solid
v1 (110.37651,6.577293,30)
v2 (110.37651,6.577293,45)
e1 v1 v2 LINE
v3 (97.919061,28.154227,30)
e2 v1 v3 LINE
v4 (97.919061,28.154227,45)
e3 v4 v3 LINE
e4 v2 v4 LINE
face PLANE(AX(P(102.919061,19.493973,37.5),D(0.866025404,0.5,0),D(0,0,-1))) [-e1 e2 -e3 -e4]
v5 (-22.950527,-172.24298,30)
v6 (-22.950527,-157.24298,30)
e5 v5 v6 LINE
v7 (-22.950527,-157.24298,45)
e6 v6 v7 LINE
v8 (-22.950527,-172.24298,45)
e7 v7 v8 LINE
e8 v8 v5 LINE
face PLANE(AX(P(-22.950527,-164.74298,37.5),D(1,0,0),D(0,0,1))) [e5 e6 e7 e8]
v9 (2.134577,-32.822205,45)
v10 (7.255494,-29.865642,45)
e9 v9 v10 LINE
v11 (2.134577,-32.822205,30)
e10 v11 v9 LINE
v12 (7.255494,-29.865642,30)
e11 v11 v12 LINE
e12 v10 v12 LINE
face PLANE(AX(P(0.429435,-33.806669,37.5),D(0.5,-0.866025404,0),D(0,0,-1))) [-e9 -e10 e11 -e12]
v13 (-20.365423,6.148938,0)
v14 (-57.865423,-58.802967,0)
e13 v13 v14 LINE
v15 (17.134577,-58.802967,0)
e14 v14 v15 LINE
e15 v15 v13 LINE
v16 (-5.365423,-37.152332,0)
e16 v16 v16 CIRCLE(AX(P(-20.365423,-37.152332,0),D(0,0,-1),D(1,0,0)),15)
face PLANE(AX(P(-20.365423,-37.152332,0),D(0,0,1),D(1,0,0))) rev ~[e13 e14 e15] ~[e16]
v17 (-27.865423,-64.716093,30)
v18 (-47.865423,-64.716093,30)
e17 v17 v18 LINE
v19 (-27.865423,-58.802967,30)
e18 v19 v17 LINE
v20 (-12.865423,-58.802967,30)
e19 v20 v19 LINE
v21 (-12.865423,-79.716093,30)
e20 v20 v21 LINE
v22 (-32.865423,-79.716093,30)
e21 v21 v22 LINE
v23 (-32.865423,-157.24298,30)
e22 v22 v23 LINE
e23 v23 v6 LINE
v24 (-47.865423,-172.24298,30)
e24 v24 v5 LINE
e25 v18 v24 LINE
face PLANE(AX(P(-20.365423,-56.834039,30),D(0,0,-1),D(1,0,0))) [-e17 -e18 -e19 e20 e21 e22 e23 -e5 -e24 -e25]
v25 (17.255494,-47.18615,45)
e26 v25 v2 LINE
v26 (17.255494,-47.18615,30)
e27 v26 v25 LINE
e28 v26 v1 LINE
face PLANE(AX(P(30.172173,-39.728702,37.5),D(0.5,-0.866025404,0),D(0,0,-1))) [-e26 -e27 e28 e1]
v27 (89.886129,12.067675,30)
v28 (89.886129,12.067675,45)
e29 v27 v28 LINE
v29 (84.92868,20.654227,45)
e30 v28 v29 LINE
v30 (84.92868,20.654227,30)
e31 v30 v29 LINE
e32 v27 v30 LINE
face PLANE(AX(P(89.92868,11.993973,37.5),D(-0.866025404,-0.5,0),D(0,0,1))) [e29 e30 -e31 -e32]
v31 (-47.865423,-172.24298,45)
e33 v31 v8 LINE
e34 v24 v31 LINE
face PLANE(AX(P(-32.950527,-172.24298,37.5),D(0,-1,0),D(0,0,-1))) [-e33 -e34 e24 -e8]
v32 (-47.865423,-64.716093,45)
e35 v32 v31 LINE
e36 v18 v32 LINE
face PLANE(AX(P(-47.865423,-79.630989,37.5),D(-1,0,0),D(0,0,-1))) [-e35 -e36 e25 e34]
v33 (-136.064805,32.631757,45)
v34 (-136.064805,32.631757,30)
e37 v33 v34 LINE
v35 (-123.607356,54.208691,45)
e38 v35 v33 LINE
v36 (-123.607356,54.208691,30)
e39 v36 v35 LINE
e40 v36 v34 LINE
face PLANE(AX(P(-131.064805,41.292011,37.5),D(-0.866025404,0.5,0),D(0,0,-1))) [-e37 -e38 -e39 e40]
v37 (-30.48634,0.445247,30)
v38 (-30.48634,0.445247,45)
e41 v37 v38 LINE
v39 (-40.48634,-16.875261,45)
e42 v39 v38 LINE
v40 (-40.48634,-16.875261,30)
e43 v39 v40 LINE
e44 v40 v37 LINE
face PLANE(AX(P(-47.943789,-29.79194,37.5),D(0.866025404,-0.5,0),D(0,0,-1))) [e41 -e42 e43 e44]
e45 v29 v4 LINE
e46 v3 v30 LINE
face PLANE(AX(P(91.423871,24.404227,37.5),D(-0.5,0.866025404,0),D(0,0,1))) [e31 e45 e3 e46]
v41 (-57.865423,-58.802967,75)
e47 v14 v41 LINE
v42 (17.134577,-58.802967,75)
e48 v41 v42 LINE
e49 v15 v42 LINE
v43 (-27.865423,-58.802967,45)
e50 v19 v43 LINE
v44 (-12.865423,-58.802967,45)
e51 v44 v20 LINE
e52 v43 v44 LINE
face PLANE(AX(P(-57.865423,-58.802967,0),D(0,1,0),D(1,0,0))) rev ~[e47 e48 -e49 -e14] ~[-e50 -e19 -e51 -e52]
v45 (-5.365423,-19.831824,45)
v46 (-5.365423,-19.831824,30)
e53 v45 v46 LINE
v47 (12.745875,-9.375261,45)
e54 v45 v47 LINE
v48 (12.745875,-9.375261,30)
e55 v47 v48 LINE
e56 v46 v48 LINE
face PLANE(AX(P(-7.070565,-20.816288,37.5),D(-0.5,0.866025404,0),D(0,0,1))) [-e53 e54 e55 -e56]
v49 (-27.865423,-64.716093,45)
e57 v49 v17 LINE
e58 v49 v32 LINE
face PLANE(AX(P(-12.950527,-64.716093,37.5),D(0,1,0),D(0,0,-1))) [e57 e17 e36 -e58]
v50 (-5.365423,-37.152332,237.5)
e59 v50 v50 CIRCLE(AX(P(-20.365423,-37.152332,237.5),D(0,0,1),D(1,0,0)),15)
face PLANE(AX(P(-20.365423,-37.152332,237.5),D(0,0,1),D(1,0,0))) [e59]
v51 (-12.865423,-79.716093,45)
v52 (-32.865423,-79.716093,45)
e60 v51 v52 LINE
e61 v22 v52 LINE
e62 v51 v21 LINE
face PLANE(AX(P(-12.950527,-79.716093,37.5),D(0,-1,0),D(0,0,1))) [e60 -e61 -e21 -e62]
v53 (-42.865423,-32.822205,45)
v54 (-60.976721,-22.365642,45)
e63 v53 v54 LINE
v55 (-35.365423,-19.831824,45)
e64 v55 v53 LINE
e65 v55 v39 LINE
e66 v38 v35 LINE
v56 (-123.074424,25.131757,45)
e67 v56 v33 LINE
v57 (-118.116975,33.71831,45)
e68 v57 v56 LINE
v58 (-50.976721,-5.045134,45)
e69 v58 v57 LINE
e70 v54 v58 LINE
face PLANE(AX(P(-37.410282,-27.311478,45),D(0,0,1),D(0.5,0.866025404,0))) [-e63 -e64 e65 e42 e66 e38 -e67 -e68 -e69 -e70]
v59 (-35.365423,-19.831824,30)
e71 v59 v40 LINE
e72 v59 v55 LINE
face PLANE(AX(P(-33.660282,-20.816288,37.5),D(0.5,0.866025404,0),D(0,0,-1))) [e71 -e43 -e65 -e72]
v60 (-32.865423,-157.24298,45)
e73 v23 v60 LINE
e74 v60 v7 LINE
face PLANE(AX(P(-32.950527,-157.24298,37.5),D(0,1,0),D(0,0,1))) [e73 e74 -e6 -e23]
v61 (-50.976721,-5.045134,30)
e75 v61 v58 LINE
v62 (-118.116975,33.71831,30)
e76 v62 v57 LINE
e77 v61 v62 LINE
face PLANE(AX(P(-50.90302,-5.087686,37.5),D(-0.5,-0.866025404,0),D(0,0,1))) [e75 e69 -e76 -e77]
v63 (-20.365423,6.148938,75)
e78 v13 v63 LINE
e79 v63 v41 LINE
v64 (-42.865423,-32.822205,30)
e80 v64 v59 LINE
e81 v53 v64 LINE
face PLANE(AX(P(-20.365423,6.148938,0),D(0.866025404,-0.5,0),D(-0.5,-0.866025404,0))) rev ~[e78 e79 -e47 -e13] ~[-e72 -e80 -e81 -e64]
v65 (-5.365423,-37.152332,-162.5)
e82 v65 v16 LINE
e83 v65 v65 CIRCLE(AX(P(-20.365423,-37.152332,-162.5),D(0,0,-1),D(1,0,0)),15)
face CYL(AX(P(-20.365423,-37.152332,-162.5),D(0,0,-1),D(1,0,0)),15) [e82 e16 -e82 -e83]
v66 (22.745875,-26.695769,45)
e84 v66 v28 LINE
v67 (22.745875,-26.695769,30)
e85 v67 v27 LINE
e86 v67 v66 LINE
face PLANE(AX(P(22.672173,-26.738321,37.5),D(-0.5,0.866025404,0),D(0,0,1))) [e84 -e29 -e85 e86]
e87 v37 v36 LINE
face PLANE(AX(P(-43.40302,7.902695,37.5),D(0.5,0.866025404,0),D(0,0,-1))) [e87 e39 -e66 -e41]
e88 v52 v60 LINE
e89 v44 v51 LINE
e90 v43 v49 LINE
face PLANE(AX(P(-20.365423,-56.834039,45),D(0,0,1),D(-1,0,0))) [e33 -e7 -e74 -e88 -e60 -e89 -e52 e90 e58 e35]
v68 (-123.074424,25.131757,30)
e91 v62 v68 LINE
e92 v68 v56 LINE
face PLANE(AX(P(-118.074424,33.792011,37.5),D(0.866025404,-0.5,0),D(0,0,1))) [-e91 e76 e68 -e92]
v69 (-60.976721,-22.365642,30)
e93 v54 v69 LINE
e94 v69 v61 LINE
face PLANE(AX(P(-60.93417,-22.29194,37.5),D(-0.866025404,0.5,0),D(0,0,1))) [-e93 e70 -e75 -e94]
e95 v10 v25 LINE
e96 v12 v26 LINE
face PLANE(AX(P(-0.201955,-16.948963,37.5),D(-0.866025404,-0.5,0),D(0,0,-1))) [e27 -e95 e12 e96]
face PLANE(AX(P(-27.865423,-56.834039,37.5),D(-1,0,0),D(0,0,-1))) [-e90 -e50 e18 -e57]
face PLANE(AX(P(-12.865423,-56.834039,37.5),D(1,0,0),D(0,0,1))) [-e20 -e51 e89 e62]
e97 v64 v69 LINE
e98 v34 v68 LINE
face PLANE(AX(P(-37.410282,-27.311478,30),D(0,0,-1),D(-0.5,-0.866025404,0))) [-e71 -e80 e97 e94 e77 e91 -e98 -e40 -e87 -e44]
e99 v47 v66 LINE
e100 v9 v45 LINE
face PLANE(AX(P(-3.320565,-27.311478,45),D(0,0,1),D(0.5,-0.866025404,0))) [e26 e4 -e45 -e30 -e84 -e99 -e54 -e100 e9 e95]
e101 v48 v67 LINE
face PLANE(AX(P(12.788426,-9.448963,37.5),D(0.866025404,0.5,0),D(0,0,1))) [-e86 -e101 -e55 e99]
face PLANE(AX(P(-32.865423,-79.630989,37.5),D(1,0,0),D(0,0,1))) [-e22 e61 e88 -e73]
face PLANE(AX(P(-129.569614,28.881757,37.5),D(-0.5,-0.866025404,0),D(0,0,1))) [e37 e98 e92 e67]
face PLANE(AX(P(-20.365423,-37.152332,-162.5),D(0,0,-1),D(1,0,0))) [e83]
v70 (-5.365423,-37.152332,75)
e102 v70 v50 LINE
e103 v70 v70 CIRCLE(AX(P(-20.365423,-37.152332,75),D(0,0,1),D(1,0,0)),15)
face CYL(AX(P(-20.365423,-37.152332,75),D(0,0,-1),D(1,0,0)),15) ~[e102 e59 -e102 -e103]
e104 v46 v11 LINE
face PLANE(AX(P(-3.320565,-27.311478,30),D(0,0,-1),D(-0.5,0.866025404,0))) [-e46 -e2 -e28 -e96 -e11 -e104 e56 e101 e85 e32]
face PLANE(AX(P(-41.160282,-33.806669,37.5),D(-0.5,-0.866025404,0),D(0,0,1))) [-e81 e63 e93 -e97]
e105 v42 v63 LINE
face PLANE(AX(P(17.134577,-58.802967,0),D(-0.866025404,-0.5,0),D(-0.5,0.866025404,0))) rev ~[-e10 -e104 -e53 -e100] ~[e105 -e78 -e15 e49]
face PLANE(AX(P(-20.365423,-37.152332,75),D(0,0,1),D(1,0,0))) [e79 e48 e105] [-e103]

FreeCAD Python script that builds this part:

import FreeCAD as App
import Part
import Sketcher
Q = App.Units.Quantity

doc = App.newDocument("Part")
body = doc.addObject("PartDesign::Body", "Body")

# Sketch on XY plane
sketch1 = body.newObject("Sketcher::SketchObject", "Sketch")
sketch1.AttachmentSupport = (doc.getObject("XY_Plane"), [""])
sketch1.MapMode = "FlatFace"
sketch1.addGeometry(Part.LineSegment(App.Vector(-20, 6, 0), App.Vector(-58, -59, 0)), False)
sketch1.addGeometry(Part.LineSegment(App.Vector(-58, -59, 0), App.Vector(17, -59, 0)), False)
sketch1.addGeometry(Part.LineSegment(App.Vector(17, -59, 0), App.Vector(-20, 6, 0)), False)
sketch1.addConstraint(Sketcher.Constraint("Coincident", 0, 2, 1, 1))
sketch1.addConstraint(Sketcher.Constraint("Coincident", 1, 2, 2, 1))
sketch1.addConstraint(Sketcher.Constraint("Coincident", 2, 2, 0, 1))
sketch1.addConstraint(Sketcher.Constraint("Horizontal", 1))
sketch1.addConstraint(Sketcher.Constraint("Equal", 0, 2))
sketch1.addConstraint(Sketcher.Constraint("DistanceX", 1, 1, 1, 2, 75.0))
sketch1.addConstraint(Sketcher.Constraint("Angle", 0, Q("-120 deg")))
sketch1.addConstraint(Sketcher.Constraint("DistanceY", -1, 1, 2, 2, 6.148938))
sketch1.addConstraint(Sketcher.Constraint("DistanceX", 0, 2, -1, 1, 57.865423))
pad1 = body.newObject("PartDesign::Pad", "Pad")
pad1.Profile = sketch1
pad1.Length = 75

# Sketch on XY plane
sketch2 = body.newObject("Sketcher::SketchObject", "Sketch001")
sketch2.AttachmentSupport = (doc.getObject("XY_Plane"), [""])
sketch2.MapMode = "FlatFace"
sketch2.AttachmentOffset = App.Placement(App.Vector(0, 0, 75), App.Rotation())
sketch2.addGeometry(Part.Circle(App.Vector(-20, -37, 0), App.Vector(0, 0, 1), 15), False)
sketch2.addConstraint(Sketcher.Constraint("Diameter", 0, 30.0))
sketch2.addConstraint(Sketcher.Constraint("DistanceY", 0, 3, -1, 1, 37.152332))
sketch2.addConstraint(Sketcher.Constraint("DistanceX", 0, 3, -1, 1, 20.365423))
pad2 = body.newObject("PartDesign::Pad", "Pad001")
pad2.Profile = sketch2
pad2.Length = 162.5

# Sketch on XY plane
sketch3 = body.newObject("Sketcher::SketchObject", "Sketch002")
sketch3.AttachmentSupport = (doc.getObject("XY_Plane"), [""])
sketch3.MapMode = "FlatFace"
sketch3.AttachmentOffset = App.Placement(App.Vector(0, 0, -162.5), App.Rotation())
sketch3.addGeometry(Part.Circle(App.Vector(-20, -37, 0), App.Vector(0, 0, 1), 15), False)
sketch3.addConstraint(Sketcher.Constraint("Diameter", 0, 30.0))
sketch3.addConstraint(Sketcher.Constraint("DistanceY", 0, 3, -1, 1, 37.152332))
sketch3.addConstraint(Sketcher.Constraint("DistanceX", 0, 3, -1, 1, 20.365423))
pad3 = body.newObject("PartDesign::Pad", "Pad002")
pad3.Profile = sketch3
pad3.Length = 162.5

# Sketch on XZ plane
sketch4 = body.newObject("Sketcher::SketchObject", "Sketch003")
sketch4.AttachmentSupport = (doc.getObject("XZ_Plane"), [""])
sketch4.MapMode = "FlatFace"
sketch4.AttachmentOffset = App.Placement(App.Vector(0, 0, 58.802967), App.Rotation())
sketch4.addGeometry(Part.LineSegment(App.Vector(-28, 45, 0), App.Vector(-28, 30, 0)), False)
sketch4.addGeometry(Part.LineSegment(App.Vector(-28, 30, 0), App.Vector(-13, 30, 0)), False)
sketch4.addGeometry(Part.LineSegment(App.Vector(-13, 30, 0), App.Vector(-13, 45, 0)), False)
sketch4.addGeometry(Part.LineSegment(App.Vector(-13, 45, 0), App.Vector(-28, 45, 0)), False)
sketch4.addConstraint(Sketcher.Constraint("Coincident", 0, 2, 1, 1))
sketch4.addConstraint(Sketcher.Constraint("Coincident", 1, 2, 2, 1))
sketch4.addConstraint(Sketcher.Constraint("Coincident", 2, 2, 3, 1))
sketch4.addConstraint(Sketcher.Constraint("Coincident", 3, 2, 0, 1))
sketch4.addConstraint(Sketcher.Constraint("Vertical", 0))
sketch4.addConstraint(Sketcher.Constraint("Horizontal", 1))
sketch4.addConstraint(Sketcher.Constraint("Vertical", 2))
sketch4.addConstraint(Sketcher.Constraint("Horizontal", 3))
sketch4.addConstraint(Sketcher.Constraint("Equal", 3, 0))
sketch4.addConstraint(Sketcher.Constraint("DistanceX", 1, 1, 1, 2, 15.0))
sketch4.addConstraint(Sketcher.Constraint("DistanceY", -1, 1, 0, 2, 30.0))
sketch4.addConstraint(Sketcher.Constraint("DistanceX", 0, 2, -1, 1, 27.865423))

# Sketch on XY plane
sketch5 = body.newObject("Sketcher::SketchObject", "Sketch004")
sketch5.AttachmentSupport = (doc.getObject("XY_Plane"), [""])
sketch5.MapMode = "FlatFace"
sketch5.AttachmentOffset = App.Placement(App.Vector(0, 0, 37.5), App.Rotation())
sketch5.addGeometry(Part.LineSegment(App.Vector(-13, -57, 0), App.Vector(-13, -80, 0)), False)
sketch5.addGeometry(Part.LineSegment(App.Vector(-13, -80, 0), App.Vector(-33, -80, 0)), False)
sketch5.addGeometry(Part.LineSegment(App.Vector(-33, -80, 0), App.Vector(-33, -157, 0)), False)
sketch5.addGeometry(Part.LineSegment(App.Vector(-33, -157, 0), App.Vector(-23, -157, 0)), False)
sketch5.addConstraint(Sketcher.Constraint("Coincident", 0, 2, 1, 1))
sketch5.addConstraint(Sketcher.Constraint("Coincident", 1, 2, 2, 1))
sketch5.addConstraint(Sketcher.Constraint("Coincident", 2, 2, 3, 1))
sketch5.addConstraint(Sketcher.Constraint("Vertical", 0))
sketch5.addConstraint(Sketcher.Constraint("Horizontal", 1))
sketch5.addConstraint(Sketcher.Constraint("Vertical", 2))
sketch5.addConstraint(Sketcher.Constraint("Horizontal", 3))
sketch5.addConstraint(Sketcher.Constraint("DistanceX", 1, 2, 1, 1, 20.0))
sketch5.addConstraint(Sketcher.Constraint("DistanceX", 3, 1, 3, 2, 10.0))
sketch5.addConstraint(Sketcher.Constraint("DistanceY", 0, 2, 0, 1, 22.79695))
sketch5.addConstraint(Sketcher.Constraint("DistanceY", 2, 2, 2, 1, 77.697094))
sketch5.addConstraint(Sketcher.Constraint("DistanceY", 0, 1, -1, 1, 56.834039))
sketch5.addConstraint(Sketcher.Constraint("DistanceX", 0, 1, -1, 1, 12.950527))
doc.recompute()

additivepipe = body.newObject("PartDesign::AdditivePipe", "AdditivePipe")
additivepipe.Profile = sketch4
additivepipe.Spine = (sketch5, ["Edge1", "Edge2", "Edge3", "Edge4"])
additivepipe.Transition = "Right corner"
doc.recompute()

datumline = body.newObject("PartDesign::Line", "DatumLine")
datumline.Placement = App.Placement(App.Vector(-20.365423, -37.152332, 0), App.Rotation(App.Vector(0, 0, 1), App.Vector(0, 0, 1)))
polarpattern = body.newObject("PartDesign::PolarPattern", "PolarPattern")
polarpattern.Originals = [additivepipe]
polarpattern.Axis = (datumline, [""])
polarpattern.Angle = 360
polarpattern.Occurrences = 3
body.Tip = polarpattern

doc.recompute()
